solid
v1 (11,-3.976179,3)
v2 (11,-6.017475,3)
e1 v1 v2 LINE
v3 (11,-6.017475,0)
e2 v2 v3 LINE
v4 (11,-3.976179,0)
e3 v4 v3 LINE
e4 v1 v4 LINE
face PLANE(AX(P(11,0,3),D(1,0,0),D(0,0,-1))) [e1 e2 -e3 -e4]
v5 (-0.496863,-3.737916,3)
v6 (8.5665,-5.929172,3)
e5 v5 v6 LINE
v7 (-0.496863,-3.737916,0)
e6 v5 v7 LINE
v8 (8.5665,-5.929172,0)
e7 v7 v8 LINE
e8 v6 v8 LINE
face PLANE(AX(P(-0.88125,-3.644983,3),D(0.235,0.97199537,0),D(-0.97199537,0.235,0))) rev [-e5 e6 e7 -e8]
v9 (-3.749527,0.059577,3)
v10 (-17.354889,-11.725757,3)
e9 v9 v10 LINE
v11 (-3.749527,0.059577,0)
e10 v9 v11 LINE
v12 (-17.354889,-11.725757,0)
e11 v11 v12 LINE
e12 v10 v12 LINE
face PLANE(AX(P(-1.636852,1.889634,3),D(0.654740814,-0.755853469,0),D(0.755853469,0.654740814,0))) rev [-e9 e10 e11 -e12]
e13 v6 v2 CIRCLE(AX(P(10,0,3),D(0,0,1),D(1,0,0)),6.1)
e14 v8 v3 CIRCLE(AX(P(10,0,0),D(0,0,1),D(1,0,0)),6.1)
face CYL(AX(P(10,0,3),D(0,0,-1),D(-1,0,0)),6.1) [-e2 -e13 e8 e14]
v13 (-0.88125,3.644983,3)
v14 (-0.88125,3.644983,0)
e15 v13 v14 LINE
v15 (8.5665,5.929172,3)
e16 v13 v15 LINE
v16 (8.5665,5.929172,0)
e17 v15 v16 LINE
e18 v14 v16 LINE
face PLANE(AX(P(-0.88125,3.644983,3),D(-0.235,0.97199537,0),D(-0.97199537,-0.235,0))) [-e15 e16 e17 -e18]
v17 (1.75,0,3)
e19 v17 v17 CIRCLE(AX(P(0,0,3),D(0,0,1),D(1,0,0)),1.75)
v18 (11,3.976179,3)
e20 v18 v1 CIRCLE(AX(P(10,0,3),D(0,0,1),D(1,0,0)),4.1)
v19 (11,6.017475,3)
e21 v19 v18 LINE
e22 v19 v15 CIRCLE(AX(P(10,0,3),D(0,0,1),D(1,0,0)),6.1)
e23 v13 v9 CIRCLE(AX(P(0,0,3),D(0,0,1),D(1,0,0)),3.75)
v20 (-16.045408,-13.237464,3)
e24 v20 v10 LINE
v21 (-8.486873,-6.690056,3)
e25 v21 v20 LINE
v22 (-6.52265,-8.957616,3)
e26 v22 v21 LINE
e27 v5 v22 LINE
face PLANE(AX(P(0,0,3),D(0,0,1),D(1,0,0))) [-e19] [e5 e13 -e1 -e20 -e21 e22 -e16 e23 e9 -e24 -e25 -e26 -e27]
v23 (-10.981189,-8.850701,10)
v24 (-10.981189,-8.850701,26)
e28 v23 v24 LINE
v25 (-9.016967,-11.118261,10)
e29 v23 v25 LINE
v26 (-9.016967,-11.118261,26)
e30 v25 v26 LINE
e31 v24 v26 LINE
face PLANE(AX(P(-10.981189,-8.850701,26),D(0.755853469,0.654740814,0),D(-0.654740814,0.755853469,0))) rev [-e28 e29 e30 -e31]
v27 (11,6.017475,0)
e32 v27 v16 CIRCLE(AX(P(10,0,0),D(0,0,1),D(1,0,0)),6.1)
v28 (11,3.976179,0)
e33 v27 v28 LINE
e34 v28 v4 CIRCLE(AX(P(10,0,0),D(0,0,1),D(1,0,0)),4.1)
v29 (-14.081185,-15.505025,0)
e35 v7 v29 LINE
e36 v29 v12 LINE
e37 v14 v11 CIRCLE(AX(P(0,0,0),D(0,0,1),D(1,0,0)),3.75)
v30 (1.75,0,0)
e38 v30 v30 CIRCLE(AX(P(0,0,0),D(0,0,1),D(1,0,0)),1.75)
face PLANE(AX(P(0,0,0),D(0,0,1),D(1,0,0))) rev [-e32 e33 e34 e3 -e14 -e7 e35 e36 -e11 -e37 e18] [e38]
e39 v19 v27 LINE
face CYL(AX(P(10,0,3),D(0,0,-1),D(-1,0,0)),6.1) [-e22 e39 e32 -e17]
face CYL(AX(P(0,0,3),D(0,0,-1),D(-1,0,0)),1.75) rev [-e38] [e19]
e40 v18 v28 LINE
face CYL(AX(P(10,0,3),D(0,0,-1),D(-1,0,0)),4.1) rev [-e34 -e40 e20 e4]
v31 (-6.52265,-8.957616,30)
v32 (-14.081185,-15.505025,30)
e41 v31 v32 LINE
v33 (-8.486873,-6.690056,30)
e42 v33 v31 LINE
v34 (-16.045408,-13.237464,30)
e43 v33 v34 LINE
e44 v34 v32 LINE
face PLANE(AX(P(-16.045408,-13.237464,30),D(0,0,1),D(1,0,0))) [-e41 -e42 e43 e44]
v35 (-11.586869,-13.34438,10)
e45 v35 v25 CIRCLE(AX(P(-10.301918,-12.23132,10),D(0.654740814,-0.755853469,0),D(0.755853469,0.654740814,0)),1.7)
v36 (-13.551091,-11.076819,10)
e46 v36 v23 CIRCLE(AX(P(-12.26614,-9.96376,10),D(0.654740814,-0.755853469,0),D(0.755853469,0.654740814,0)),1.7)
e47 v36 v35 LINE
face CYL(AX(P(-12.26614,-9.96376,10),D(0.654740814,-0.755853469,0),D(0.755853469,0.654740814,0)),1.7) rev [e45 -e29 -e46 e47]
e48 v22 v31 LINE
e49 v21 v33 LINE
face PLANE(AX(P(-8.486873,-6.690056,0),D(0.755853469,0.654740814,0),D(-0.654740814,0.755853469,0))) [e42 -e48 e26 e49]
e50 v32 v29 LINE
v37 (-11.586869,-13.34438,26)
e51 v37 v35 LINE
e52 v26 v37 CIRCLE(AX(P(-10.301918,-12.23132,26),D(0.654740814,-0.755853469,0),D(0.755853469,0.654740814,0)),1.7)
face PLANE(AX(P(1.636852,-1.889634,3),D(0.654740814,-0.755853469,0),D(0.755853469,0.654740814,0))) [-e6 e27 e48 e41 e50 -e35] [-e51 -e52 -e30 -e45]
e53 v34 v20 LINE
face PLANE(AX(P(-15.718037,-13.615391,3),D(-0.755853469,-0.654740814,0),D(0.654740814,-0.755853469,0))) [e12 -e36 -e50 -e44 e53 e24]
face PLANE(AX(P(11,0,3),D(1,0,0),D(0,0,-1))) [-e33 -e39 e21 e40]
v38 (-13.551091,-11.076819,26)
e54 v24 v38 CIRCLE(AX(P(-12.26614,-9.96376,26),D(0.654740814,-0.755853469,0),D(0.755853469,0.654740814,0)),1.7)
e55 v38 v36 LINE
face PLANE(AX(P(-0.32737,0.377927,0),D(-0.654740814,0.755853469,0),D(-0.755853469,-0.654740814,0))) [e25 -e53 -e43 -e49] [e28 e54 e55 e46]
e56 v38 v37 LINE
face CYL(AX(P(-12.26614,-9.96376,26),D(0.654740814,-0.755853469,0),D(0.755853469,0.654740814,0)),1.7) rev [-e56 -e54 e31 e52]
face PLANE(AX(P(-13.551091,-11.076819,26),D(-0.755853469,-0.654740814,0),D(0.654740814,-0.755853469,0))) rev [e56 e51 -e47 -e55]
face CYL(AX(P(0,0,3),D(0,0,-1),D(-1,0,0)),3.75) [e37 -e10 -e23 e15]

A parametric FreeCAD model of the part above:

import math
import FreeCAD as App
import Part
import Sketcher

V = App.Vector
Q = App.Units.Quantity

doc = App.newDocument("Part")
body = doc.addObject("PartDesign::Body", "Body")

# Sketch on XY plane
sketch1 = doc.addObject("Sketcher::SketchObject", "Sketch")
body.addObject(sketch1)
sketch1.AttachmentSupport = (doc.XY_Plane, [""])
sketch1.MapMode = "FlatFace"
sketch1.addGeometry(Part.ArcOfCircle(Part.Circle(V(0, 0, 0), V(0, 0, 1), 3.7), math.radians(104), math.radians(179)), False)
sketch1.addGeometry(Part.LineSegment(V(-3.7, 0.1, 0), V(-17.4, -11.7, 0)), False)
sketch1.addGeometry(Part.LineSegment(V(-17.4, -11.7, 0), V(-14.1, -15.5, 0)), False)
sketch1.addGeometry(Part.LineSegment(V(-14.1, -15.5, 0), V(-0.5, -3.7, 0)), False)
sketch1.addGeometry(Part.LineSegment(V(-0.5, -3.7, 0), V(8.6, -5.9, 0)), False)
sketch1.addGeometry(Part.ArcOfCircle(Part.Circle(V(10, 0, 0), V(0, 0, 1), 6.1), math.radians(-104), math.radians(-81)), False)
sketch1.addGeometry(Part.LineSegment(V(11, -6, 0), V(11, -4, 0)), False)
sketch1.addGeometry(Part.ArcOfCircle(Part.Circle(V(10, 0, 0), V(0, 0, 1), 4.1), math.radians(76), math.radians(284)), False)
sketch1.addGeometry(Part.LineSegment(V(11, 4, 0), V(11, 6, 0)), False)
sketch1.addGeometry(Part.ArcOfCircle(Part.Circle(V(10, 0, 0), V(0, 0, 1), 6.1), math.radians(81), math.radians(104)), False)
sketch1.addGeometry(Part.LineSegment(V(8.6, 5.9, 0), V(-0.9, 3.6, 0)), False)
sketch1.addGeometry(Part.Circle(V(0, 0, 0), V(0, 0, 1), 1.8), False)
sketch1.addConstraint(Sketcher.Constraint("Coincident", 0, 2, 1, 1))
sketch1.addConstraint(Sketcher.Constraint("Coincident", 1, 2, 2, 1))
sketch1.addConstraint(Sketcher.Constraint("Coincident", 2, 2, 3, 1))
sketch1.addConstraint(Sketcher.Constraint("Coincident", 3, 2, 4, 1))
sketch1.addConstraint(Sketcher.Constraint("Tangent", 4, 2, 5, 1))
sketch1.addConstraint(Sketcher.Constraint("Coincident", 5, 2, 6, 1))
sketch1.addConstraint(Sketcher.Constraint("Coincident", 6, 2, 7, 2))
sketch1.addConstraint(Sketcher.Constraint("Coincident", 7, 1, 8, 1))
sketch1.addConstraint(Sketcher.Constraint("Coincident", 8, 2, 9, 1))
sketch1.addConstraint(Sketcher.Constraint("Tangent", 9, 2, 10, 1))
sketch1.addConstraint(Sketcher.Constraint("Tangent", 10, 2, 0, 1))
sketch1.addConstraint(Sketcher.Constraint("Vertical", 6))
sketch1.addConstraint(Sketcher.Constraint("Vertical", 8))
sketch1.addConstraint(Sketcher.Constraint("Coincident", 0, 3, -1, 1))
sketch1.addConstraint(Sketcher.Constraint("Coincident", 11, 3, -1, 1))
sketch1.addConstraint(Sketcher.Constraint("Coincident", 7, 3, 5, 3))
sketch1.addConstraint(Sketcher.Constraint("Coincident", 9, 3, 5, 3))
sketch1.addConstraint(Sketcher.Constraint("Equal", 5, 9))
sketch1.addConstraint(Sketcher.Constraint("Symmetric", 6, 2, 7, 1, -1))
sketch1.addConstraint(Sketcher.Constraint("Perpendicular", 1, 2))
sketch1.addConstraint(Sketcher.Constraint("Perpendicular", 2, 3))
sketch1.addConstraint(Sketcher.Constraint("Vertical", 4, 2, 9, 2))
sketch1.addConstraint(Sketcher.Constraint("Diameter", 11, Q("3.5 mm")))
sketch1.addConstraint(Sketcher.Constraint("Radius", 5, Q("6.1 mm")))
sketch1.addConstraint(Sketcher.Constraint("Radius", 7, Q("4.1 mm")))
sketch1.addConstraint(Sketcher.Constraint("Radius", 0, Q("3.75 mm")))
sketch1.addConstraint(Sketcher.Constraint("Distance", 1, Q("18 mm")))
sketch1.addConstraint(Sketcher.Constraint("Distance", 2, Q("5 mm")))
sketch1.addConstraint(Sketcher.Constraint("DistanceX", -1, 1, 5, 3, Q("10 mm")))
sketch1.addConstraint(Sketcher.Constraint("DistanceX", -1, 1, 5, 2, Q("11 mm")))
sketch1.addConstraint(Sketcher.Constraint("Angle", 1, Q("-139.1 deg")))
sketch1.addConstraint(Sketcher.Constraint("DistanceY", 3, 2, 10, 2, Q("7.382899 mm")))
pad1 = doc.addObject("PartDesign::Pad", "Pad")
body.addObject(pad1)
pad1.Profile = sketch1
pad1.Length = 3

# Sketch on an angled plane
sketch2 = doc.addObject("Sketcher::SketchObject", "Sketch001")
body.addObject(sketch2)
sketch2.Placement = App.Placement(V(1.636852, -1.889634, 0), App.Rotation(V(0.755853469, 0.654740814, 0), V(0, 0, 1), V(0.654740814, -0.755853469, 0), "ZXY"))
sketch2.addGeometry(Part.LineSegment(V(-20.8, 30, 0), V(-20.8, 0, 0)), False)
sketch2.addGeometry(Part.LineSegment(V(-20.8, 0, 0), V(-10.8, 0, 0)), False)
sketch2.addGeometry(Part.LineSegment(V(-10.8, 0, 0), V(-10.8, 30, 0)), False)
sketch2.addGeometry(Part.LineSegment(V(-10.8, 30, 0), V(-20.8, 30, 0)), False)
sketch2.addGeometry(Part.ArcOfCircle(Part.Circle(V(-15.8, 26, 0), V(0, 0, 1), 1.7), math.radians(0), math.radians(180)), False)
sketch2.addGeometry(Part.LineSegment(V(-14.1, 26, 0), V(-14.1, 10, 0)), False)
sketch2.addGeometry(Part.ArcOfCircle(Part.Circle(V(-15.8, 10, 0), V(0, 0, 1), 1.7), math.radians(180), math.radians(360)), False)
sketch2.addGeometry(Part.LineSegment(V(-17.5, 10, 0), V(-17.5, 26, 0)), False)
sketch2.addConstraint(Sketcher.Constraint("Coincident", 0, 2, 1, 1))
sketch2.addConstraint(Sketcher.Constraint("Coincident", 1, 2, 2, 1))
sketch2.addConstraint(Sketcher.Constraint("Coincident", 2, 2, 3, 1))
sketch2.addConstraint(Sketcher.Constraint("Coincident", 3, 2, 0, 1))
sketch2.addConstraint(Sketcher.Constraint("Tangent", 4, 1, 5, 1))
sketch2.addConstraint(Sketcher.Constraint("Tangent", 5, 2, 6, 2))
sketch2.addConstraint(Sketcher.Constraint("Tangent", 6, 1, 7, 1))
sketch2.addConstraint(Sketcher.Constraint("Tangent", 7, 2, 4, 2))
sketch2.addConstraint(Sketcher.Constraint("Vertical", 0))
sketch2.addConstraint(Sketcher.Constraint("Horizontal", 1))
sketch2.addConstraint(Sketcher.Constraint("Vertical", 2))
sketch2.addConstraint(Sketcher.Constraint("Horizontal", 3))
sketch2.addConstraint(Sketcher.Constraint("Vertical", 5))
sketch2.addConstraint(Sketcher.Constraint("Vertical", 7))
sketch2.addConstraint(Sketcher.Constraint("PointOnObject", 0, 2, -1))
sketch2.addConstraint(Sketcher.Constraint("Radius", 4, Q("1.7 mm")))
sketch2.addConstraint(Sketcher.Constraint("DistanceX", 1, 1, 1, 2, Q("10 mm")))
sketch2.addConstraint(Sketcher.Constraint("DistanceY", 0, 2, 0, 1, Q("30 mm")))
sketch2.addConstraint(Sketcher.Constraint("DistanceY", 5, 2, 5, 1, Q("16 mm")))
sketch2.addConstraint(Sketcher.Constraint("DistanceY", -1, 1, 4, 3, Q("26 mm")))
sketch2.addConstraint(Sketcher.Constraint("DistanceX", 0, 2, 6, 3, Q("5 mm")))
sketch2.addConstraint(Sketcher.Constraint("DistanceX", 4, 3, -1, 1, Q("15.795085 mm")))
pad2 = doc.addObject("PartDesign::Pad", "Pad001")
body.addObject(pad2)
pad2.Profile = sketch2
pad2.Length = 3
pad2.Reversed = True

doc.recompute()
